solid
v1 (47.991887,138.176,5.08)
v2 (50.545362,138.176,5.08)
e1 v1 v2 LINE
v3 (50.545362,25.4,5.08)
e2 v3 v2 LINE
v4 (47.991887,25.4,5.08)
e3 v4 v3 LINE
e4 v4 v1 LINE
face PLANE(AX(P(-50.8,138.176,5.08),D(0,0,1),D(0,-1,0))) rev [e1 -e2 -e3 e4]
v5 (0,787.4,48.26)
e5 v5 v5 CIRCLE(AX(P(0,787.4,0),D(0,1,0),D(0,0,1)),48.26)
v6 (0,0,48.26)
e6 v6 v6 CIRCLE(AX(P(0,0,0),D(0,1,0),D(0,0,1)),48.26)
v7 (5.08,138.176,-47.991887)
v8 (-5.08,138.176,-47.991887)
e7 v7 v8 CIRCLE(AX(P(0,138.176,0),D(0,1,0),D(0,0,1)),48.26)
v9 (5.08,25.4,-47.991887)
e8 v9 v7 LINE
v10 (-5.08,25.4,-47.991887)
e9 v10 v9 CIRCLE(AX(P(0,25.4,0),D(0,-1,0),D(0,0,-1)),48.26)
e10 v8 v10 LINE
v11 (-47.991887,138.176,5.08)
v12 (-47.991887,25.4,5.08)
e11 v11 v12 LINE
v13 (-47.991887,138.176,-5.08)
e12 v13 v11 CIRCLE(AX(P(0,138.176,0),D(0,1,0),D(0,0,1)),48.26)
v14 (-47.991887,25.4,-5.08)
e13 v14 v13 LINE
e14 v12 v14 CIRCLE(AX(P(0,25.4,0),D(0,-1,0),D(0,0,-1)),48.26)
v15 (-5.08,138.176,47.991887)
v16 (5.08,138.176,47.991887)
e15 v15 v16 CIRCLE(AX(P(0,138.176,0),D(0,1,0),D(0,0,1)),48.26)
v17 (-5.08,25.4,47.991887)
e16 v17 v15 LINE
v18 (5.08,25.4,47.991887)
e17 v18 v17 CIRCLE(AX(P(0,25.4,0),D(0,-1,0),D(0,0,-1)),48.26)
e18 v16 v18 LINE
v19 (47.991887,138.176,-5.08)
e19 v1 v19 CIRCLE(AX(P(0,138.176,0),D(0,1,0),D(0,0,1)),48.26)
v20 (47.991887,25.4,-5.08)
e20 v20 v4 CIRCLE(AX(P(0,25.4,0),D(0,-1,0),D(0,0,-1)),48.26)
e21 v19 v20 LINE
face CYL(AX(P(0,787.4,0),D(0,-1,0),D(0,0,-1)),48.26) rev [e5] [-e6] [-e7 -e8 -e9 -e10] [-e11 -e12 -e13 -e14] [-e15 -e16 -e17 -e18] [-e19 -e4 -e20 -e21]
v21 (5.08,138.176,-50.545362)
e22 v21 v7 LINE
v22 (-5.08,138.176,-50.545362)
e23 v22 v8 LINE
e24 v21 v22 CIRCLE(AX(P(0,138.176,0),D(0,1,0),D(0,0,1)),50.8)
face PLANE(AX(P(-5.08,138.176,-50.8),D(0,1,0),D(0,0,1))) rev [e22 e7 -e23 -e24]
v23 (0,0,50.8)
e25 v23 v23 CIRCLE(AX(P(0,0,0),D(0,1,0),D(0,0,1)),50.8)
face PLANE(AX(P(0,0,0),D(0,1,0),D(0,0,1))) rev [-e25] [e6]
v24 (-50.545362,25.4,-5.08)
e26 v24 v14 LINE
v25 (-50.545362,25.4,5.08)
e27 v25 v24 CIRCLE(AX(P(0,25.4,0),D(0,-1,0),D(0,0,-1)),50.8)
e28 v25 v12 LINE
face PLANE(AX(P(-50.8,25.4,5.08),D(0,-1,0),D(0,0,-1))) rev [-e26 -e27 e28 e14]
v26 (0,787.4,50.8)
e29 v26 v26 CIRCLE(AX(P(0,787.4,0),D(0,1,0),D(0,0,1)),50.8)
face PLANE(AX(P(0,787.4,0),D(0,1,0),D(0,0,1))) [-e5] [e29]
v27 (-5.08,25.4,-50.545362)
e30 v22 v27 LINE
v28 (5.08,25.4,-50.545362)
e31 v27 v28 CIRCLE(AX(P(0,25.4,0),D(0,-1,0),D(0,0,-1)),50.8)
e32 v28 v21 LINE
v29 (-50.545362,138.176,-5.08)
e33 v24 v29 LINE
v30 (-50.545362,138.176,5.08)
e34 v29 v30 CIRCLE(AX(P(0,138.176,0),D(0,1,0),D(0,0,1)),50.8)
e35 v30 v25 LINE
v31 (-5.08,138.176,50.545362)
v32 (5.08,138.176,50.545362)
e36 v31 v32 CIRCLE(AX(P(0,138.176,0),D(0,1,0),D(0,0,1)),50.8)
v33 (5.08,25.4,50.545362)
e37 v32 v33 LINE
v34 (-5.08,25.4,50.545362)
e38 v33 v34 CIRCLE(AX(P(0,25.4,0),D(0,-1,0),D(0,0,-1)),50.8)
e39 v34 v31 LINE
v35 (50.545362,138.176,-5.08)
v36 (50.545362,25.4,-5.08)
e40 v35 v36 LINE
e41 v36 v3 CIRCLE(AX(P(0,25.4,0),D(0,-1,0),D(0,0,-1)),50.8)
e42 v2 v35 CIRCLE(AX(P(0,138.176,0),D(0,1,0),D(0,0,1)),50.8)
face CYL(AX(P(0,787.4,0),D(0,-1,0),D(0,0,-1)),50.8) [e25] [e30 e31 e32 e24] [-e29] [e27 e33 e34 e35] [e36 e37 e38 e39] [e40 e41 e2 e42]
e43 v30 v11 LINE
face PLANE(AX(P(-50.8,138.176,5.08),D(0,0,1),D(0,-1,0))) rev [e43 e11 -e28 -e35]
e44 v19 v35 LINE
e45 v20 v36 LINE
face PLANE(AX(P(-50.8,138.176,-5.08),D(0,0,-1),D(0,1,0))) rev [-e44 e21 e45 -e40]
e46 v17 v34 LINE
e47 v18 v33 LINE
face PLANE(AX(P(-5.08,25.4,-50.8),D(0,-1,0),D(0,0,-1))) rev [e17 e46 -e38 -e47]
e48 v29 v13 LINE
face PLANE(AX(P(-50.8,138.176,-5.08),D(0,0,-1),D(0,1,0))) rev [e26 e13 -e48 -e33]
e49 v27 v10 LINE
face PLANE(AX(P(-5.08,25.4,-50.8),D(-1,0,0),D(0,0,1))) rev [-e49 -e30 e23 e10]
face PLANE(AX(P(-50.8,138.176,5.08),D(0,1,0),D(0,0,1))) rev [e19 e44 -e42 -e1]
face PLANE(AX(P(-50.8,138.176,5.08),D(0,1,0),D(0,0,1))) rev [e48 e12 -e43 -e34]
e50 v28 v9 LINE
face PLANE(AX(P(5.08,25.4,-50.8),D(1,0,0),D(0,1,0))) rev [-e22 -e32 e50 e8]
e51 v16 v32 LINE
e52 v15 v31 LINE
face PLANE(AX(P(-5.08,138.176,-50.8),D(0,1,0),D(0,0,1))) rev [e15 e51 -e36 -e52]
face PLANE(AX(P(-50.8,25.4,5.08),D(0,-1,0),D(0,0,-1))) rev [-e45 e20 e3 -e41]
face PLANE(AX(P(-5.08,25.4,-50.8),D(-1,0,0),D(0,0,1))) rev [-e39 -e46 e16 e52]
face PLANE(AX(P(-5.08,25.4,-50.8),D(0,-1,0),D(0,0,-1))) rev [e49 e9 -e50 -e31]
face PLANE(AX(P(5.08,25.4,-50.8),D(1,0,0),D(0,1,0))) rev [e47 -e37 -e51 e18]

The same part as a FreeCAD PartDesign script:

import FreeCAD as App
import Part
import Sketcher

V = App.Vector
Q = App.Units.Quantity


def add_polygon(sketch, points):
    """Adds a closed chain of lines whose ends are joined by coincident constraints."""
    first, n = sketch.GeometryCount, len(points)
    for a, b in zip(points, points[1:] + points[:1]):
        sketch.addGeometry(Part.LineSegment(App.Vector(*a, 0), App.Vector(*b, 0)), False)
    for i in range(n):
        sketch.addConstraint(Sketcher.Constraint("Coincident", first + i, 2, first + (i + 1) % n, 1))

doc = App.newDocument("Part")
body = doc.addObject("PartDesign::Body", "Body")

# Sketch on XZ plane
sketch1 = body.newObject("Sketcher::SketchObject", "Sketch")
sketch1.AttachmentSupport = (doc.getObject("XZ_Plane"), [""])
sketch1.MapMode = "FlatFace"
sketch1.addGeometry(Part.Circle(V(0, 0, 0), V(0, 0, 1), 51), False)
sketch1.addGeometry(Part.Circle(V(0, 0, 0), V(0, 0, 1), 48), False)
sketch1.addConstraint(Sketcher.Constraint("Coincident", 0, 3, -1, 1))
sketch1.addConstraint(Sketcher.Constraint("Coincident", 1, 3, -1, 1))
sketch1.addConstraint(Sketcher.Constraint("Diameter", 0, Q("4 in")))
sketch1.addConstraint(Sketcher.Constraint("Diameter", 1, Q("3.8 in")))
pad1 = body.newObject("PartDesign::Pad", "Pad")
pad1.Profile = sketch1
pad1.Length = Q("31 in")
pad1.Reversed = True

# Sketch on XY plane
sketch2 = body.newObject("Sketcher::SketchObject", "Sketch001")
sketch2.AttachmentSupport = (doc.getObject("XY_Plane"), [""])
sketch2.MapMode = "FlatFace"
add_polygon(sketch2, [(-5, 138), (-5, 25), (5, 25), (5, 138)])  # lines 0-3
sketch2.addConstraint(Sketcher.Constraint("Vertical", 0))
sketch2.addConstraint(Sketcher.Constraint("Horizontal", 1))
sketch2.addConstraint(Sketcher.Constraint("Vertical", 2))
sketch2.addConstraint(Sketcher.Constraint("Horizontal", 3))
sketch2.addConstraint(Sketcher.Constraint("DistanceX", 1, 1, 1, 2, Q("0.4 in")))
sketch2.addConstraint(Sketcher.Constraint("DistanceY", -1, 1, 0, 2, Q("1 in")))
sketch2.addConstraint(Sketcher.Constraint("DistanceY", 0, 2, 0, 1, Q("4.44 in")))
sketch2.addConstraint(Sketcher.Constraint("DistanceX", 0, 2, -1, 1, Q("0.2 in")))
pocket1 = body.newObject("PartDesign::Pocket", "Pocket")
pocket1.Profile = sketch2
pocket1.Type = "ThroughAll"
pocket1.Midplane = True

# Sketch on YZ plane
sketch3 = body.newObject("Sketcher::SketchObject", "Sketch002")
sketch3.AttachmentSupport = (doc.getObject("YZ_Plane"), [""])
sketch3.MapMode = "FlatFace"
add_polygon(sketch3, [(138, 5), (25, 5), (25, -5), (138, -5)])  # lines 0-3
sketch3.addConstraint(Sketcher.Constraint("Horizontal", 0))
sketch3.addConstraint(Sketcher.Constraint("Vertical", 1))
sketch3.addConstraint(Sketcher.Constraint("Horizontal", 2))
sketch3.addConstraint(Sketcher.Constraint("Vertical", 3))
sketch3.addConstraint(Sketcher.Constraint("DistanceY", 1, 2, 1, 1, Q("0.4 in")))
sketch3.addConstraint(Sketcher.Constraint("DistanceX", -1, 1, 0, 2, Q("1 in")))
sketch3.addConstraint(Sketcher.Constraint("DistanceX", 0, 2, 0, 1, Q("4.44 in")))
sketch3.addConstraint(Sketcher.Constraint("DistanceY", -1, 1, 0, 2, Q("0.2 in")))
pocket2 = body.newObject("PartDesign::Pocket", "Pocket001")
pocket2.Profile = sketch3
pocket2.Type = "ThroughAll"
pocket2.Midplane = True

doc.recompute()
